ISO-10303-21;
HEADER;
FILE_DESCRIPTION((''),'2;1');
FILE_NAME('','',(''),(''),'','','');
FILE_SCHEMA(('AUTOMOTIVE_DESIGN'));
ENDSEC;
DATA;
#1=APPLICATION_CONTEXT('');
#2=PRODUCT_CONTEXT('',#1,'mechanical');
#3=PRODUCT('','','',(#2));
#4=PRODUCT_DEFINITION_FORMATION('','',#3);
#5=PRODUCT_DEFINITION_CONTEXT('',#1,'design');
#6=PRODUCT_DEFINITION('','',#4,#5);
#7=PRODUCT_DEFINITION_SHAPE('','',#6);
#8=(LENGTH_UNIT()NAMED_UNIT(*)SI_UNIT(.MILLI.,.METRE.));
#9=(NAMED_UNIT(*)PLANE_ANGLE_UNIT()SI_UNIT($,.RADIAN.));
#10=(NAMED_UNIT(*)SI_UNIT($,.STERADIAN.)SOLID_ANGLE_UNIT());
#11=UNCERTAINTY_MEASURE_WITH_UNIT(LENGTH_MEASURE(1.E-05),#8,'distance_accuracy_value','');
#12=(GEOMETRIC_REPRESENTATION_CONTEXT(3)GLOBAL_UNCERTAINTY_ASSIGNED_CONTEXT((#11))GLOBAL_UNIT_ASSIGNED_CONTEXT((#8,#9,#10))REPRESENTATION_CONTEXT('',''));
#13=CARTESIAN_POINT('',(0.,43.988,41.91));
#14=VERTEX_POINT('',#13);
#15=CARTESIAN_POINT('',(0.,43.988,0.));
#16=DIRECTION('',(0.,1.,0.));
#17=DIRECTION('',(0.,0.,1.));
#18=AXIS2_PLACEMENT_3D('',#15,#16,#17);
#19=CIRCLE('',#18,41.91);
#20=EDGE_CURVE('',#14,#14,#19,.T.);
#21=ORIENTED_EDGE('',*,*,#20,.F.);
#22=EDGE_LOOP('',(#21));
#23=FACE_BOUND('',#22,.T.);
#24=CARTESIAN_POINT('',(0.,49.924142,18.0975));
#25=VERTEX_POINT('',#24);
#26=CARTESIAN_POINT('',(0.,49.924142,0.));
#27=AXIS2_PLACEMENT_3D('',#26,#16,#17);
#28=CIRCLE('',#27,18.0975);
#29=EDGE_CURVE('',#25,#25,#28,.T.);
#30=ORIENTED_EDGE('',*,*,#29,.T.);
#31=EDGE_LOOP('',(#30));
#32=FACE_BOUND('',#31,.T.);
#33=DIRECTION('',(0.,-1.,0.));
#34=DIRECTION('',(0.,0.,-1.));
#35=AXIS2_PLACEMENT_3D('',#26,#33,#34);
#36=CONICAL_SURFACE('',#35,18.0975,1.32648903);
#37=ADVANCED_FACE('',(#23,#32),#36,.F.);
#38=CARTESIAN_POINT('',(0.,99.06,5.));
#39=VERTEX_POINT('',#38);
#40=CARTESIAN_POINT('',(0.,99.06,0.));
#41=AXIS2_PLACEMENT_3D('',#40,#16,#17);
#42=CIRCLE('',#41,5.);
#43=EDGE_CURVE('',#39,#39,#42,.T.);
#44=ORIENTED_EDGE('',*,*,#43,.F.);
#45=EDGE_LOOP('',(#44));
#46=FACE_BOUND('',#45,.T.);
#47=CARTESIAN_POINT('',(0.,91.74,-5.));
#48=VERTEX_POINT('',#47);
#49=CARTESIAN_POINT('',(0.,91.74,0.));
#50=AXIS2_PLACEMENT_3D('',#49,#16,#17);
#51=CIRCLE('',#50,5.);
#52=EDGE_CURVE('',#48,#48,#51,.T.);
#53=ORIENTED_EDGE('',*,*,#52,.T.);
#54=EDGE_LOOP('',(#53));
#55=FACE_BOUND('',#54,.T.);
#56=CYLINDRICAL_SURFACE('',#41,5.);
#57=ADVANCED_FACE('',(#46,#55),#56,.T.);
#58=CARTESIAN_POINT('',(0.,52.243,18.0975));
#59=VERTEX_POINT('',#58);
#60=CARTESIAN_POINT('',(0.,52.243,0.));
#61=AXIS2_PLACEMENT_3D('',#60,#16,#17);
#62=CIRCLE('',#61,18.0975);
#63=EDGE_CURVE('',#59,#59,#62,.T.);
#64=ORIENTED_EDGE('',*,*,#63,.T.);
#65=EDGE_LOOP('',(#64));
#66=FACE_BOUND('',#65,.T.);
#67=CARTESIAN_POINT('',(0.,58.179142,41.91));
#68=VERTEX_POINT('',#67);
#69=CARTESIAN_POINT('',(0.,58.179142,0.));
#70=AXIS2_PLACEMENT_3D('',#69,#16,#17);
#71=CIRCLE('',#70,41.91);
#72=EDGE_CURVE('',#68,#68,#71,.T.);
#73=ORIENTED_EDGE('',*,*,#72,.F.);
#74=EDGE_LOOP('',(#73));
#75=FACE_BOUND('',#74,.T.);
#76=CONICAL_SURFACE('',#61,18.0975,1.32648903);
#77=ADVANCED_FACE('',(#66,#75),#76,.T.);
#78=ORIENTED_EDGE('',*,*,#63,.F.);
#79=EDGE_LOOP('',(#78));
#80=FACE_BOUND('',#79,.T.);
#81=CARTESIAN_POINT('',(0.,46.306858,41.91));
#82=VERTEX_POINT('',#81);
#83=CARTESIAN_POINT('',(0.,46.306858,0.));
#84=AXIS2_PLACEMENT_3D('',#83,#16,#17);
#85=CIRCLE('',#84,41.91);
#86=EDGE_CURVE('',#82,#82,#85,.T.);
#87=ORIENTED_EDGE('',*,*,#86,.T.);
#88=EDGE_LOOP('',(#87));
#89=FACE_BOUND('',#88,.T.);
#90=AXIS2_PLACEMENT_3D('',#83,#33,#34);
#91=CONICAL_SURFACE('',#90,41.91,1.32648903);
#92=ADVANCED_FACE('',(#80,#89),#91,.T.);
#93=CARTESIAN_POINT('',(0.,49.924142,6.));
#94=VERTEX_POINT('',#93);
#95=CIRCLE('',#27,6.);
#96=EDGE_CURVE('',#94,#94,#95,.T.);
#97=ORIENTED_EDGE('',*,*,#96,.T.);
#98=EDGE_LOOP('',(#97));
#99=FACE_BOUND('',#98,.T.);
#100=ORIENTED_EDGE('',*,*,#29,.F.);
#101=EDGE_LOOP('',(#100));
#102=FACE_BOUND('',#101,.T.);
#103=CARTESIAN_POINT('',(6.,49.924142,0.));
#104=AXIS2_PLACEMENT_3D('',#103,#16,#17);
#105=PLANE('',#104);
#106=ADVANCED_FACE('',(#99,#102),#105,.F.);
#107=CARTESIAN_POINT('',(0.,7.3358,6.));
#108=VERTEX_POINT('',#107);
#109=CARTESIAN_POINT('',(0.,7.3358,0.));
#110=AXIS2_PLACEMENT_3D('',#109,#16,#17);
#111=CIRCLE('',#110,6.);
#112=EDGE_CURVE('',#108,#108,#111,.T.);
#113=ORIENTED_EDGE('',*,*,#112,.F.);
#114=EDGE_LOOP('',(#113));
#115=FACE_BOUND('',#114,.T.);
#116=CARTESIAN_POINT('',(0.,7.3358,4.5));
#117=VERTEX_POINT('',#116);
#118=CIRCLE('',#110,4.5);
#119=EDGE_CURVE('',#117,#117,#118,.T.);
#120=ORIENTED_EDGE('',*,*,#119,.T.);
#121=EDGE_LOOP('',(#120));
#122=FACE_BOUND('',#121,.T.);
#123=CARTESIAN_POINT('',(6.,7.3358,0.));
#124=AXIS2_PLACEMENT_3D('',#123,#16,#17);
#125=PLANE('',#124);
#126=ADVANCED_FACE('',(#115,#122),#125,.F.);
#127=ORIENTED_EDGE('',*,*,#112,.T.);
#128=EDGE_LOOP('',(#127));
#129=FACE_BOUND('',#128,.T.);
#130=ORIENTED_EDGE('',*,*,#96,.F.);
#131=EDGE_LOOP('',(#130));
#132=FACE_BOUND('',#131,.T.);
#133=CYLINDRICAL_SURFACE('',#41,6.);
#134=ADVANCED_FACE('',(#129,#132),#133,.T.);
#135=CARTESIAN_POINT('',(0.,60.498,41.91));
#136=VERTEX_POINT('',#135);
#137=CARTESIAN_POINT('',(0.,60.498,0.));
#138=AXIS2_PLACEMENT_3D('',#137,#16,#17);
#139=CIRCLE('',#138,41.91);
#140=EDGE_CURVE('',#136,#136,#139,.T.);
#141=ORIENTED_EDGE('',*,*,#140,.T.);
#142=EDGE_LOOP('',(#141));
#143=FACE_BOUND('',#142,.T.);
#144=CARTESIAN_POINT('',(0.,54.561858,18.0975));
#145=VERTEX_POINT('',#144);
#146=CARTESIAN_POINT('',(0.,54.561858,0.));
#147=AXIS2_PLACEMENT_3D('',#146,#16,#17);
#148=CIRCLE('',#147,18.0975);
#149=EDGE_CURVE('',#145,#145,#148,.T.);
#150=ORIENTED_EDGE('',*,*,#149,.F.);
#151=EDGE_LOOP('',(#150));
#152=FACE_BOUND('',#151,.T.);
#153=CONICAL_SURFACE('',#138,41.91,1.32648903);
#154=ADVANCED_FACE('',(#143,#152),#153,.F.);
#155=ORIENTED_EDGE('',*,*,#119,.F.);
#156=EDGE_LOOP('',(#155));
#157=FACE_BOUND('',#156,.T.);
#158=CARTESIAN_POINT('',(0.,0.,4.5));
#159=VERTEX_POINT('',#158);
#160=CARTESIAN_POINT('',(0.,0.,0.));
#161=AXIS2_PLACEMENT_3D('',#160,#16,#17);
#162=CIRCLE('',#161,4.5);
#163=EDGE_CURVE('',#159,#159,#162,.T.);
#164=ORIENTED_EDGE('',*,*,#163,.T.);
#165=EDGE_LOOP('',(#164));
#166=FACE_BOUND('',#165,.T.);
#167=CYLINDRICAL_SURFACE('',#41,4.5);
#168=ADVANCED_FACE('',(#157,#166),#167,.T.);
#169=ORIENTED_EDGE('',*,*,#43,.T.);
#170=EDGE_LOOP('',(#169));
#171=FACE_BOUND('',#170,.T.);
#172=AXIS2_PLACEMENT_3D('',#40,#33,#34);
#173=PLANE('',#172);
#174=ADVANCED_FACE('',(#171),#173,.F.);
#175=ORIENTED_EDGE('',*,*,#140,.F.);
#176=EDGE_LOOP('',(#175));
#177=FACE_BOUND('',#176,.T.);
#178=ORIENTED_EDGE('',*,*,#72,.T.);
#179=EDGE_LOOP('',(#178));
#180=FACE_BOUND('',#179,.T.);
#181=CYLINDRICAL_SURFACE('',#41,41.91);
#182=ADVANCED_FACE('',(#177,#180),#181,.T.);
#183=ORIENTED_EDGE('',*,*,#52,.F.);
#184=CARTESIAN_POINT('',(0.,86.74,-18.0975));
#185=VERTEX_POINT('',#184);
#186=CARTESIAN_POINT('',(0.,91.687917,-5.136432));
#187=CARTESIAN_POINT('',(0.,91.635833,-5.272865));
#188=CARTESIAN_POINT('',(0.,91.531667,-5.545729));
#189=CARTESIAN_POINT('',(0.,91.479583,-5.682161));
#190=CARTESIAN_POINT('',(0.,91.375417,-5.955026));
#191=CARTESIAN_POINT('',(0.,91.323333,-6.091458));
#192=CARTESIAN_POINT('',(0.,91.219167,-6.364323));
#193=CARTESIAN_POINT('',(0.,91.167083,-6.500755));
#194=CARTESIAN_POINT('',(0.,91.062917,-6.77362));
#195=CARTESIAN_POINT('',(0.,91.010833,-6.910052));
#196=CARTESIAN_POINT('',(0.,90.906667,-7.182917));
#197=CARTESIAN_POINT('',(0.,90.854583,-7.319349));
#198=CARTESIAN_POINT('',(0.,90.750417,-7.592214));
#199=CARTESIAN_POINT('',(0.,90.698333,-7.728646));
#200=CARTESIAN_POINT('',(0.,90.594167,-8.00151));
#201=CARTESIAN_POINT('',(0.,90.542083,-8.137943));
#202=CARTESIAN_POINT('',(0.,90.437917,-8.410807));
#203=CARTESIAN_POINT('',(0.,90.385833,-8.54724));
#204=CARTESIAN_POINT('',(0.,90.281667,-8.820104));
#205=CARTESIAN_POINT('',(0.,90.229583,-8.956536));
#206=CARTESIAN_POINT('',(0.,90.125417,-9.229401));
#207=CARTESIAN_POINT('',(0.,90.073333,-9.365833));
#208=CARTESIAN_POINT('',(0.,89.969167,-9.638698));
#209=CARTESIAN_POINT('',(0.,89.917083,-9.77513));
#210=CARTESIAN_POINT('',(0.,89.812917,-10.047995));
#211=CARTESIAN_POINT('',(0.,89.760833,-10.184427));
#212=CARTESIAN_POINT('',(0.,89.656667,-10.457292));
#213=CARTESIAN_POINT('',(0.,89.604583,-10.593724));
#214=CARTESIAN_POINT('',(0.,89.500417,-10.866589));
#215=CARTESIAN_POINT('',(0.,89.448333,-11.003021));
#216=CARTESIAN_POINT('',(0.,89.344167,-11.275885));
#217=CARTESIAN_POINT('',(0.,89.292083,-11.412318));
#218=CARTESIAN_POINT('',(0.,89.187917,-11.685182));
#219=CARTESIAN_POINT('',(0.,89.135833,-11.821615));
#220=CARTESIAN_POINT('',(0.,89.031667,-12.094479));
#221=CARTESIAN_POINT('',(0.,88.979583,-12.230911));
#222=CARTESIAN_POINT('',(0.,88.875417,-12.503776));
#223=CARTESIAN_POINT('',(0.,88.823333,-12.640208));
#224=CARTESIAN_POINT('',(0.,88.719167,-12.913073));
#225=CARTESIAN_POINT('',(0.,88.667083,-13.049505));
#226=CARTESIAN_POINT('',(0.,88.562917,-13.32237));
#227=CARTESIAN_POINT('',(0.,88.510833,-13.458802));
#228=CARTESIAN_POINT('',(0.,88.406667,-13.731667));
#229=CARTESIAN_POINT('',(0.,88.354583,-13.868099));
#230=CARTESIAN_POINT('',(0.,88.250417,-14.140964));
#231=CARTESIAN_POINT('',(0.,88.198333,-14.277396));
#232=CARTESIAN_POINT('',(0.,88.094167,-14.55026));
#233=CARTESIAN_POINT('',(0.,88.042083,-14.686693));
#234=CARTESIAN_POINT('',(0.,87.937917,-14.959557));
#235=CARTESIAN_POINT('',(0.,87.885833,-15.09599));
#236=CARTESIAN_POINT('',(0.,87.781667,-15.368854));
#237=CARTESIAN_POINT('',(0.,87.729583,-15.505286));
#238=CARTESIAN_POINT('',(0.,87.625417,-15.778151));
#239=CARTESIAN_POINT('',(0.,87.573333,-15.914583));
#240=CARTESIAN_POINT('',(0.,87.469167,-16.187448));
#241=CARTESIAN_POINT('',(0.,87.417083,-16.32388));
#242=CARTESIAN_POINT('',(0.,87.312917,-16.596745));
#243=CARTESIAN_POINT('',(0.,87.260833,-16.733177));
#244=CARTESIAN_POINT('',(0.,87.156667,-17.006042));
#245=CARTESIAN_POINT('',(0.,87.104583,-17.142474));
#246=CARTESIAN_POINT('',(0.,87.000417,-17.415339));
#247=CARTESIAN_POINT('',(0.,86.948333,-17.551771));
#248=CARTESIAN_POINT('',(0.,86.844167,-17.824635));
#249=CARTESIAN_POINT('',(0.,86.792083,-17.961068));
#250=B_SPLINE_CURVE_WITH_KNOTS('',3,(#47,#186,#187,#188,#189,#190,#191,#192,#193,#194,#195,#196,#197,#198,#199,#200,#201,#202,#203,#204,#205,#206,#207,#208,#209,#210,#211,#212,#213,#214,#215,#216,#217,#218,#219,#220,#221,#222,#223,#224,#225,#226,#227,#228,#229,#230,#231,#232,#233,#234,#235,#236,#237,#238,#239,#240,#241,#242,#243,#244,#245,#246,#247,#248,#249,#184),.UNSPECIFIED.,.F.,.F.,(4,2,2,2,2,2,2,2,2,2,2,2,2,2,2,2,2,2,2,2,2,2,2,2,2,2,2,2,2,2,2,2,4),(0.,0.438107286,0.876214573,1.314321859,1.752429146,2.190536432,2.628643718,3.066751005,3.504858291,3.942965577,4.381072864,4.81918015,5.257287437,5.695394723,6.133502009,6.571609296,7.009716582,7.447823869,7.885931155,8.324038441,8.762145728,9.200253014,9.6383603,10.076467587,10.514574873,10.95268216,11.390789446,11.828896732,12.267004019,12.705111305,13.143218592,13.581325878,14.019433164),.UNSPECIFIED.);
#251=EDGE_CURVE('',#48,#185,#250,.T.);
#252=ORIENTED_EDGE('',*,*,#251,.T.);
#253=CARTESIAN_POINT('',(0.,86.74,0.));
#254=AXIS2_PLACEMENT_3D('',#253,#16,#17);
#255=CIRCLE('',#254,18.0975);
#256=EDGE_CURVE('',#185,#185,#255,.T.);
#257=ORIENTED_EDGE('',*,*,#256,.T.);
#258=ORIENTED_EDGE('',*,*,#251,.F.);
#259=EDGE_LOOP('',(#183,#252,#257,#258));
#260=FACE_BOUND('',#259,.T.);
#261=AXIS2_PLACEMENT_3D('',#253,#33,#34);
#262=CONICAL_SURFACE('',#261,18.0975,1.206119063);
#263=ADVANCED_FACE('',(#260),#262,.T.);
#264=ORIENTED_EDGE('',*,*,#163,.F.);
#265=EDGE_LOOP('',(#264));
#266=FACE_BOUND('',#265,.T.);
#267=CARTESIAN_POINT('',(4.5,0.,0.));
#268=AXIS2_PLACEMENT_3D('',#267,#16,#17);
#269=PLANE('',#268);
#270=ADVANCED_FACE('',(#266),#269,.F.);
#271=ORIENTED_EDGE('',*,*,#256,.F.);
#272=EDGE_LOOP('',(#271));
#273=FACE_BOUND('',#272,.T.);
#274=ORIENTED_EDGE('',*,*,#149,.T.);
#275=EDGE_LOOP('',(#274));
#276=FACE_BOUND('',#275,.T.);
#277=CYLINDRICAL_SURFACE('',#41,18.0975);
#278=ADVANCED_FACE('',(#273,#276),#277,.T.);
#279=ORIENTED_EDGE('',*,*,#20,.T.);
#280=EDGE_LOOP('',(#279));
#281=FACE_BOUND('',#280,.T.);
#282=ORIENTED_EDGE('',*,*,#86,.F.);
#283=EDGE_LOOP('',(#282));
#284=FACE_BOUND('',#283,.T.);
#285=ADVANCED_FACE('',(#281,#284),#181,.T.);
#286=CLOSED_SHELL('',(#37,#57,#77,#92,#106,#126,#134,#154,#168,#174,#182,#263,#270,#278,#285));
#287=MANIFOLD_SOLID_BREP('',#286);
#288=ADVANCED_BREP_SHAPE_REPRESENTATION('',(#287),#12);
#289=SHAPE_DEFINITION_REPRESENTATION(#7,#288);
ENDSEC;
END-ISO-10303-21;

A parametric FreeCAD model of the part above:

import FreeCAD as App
import Part
import Sketcher
from FreeCAD import Vector
Q = App.Units.Quantity


def add_polygon(sketch, points):
    """Adds a closed chain of lines whose ends are joined by coincident constraints."""
    first, n = sketch.GeometryCount, len(points)
    for a, b in zip(points, points[1:] + points[:1]):
        sketch.addGeometry(Part.LineSegment(App.Vector(*a, 0), App.Vector(*b, 0)), False)
    for i in range(n):
        sketch.addConstraint(Sketcher.Constraint("Coincident", first + i, 2, first + (i + 1) % n, 1))

doc = App.newDocument("Part")
body = doc.addObject("PartDesign::Body", "Body")

# Sketch on XY plane
sketch1 = body.newObject("Sketcher::SketchObject", "Sketch")
sketch1.AttachmentSupport = (doc.getObject("XY_Plane"), [""])
sketch1.MapMode = "FlatFace"
add_polygon(sketch1, [(5, 99.1), (0, 99.1), (0, 0), (4.5, 0), (4.5, 7.3), (6, 7.3), (6, 49.9), (18.1, 49.9), (41.9, 44), (41.9, 46.3), (18.1, 52.2), (41.9, 58.2), (41.9, 60.5), (18.1, 54.6), (18.1, 86.7), (5, 91.7)])  # lines 0-15
sketch1.addConstraint([
    Sketcher.Constraint("Horizontal", 0),
    Sketcher.Constraint("Vertical", 1),
    Sketcher.Constraint("Horizontal", 2),
    Sketcher.Constraint("Vertical", 3),
    Sketcher.Constraint("Horizontal", 4),
    Sketcher.Constraint("Vertical", 5),
    Sketcher.Constraint("Horizontal", 6),
    Sketcher.Constraint("Vertical", 8),
    Sketcher.Constraint("Vertical", 11),
    Sketcher.Constraint("Vertical", 13),
    Sketcher.Constraint("Vertical", 15),
    Sketcher.Constraint("Coincident", 1, 2, -1, 1),
    Sketcher.Constraint("Parallel", 7, 9),
    Sketcher.Constraint("Parallel", 10, 12),
    Sketcher.Constraint("Vertical", 6, 2, 9, 2),
    Sketcher.Constraint("Vertical", 8, 2, 10, 2),
    Sketcher.Constraint("Vertical", 9, 2, 12, 2),
    Sketcher.Constraint("Equal", 8, 11),
    Sketcher.Constraint("Equal", 9, 10),
    Sketcher.Constraint("DistanceX", 0, 2, 0, 1, Q("5 mm")),
    Sketcher.Constraint("DistanceX", 2, 1, 2, 2, Q("4.5 mm")),
    Sketcher.Constraint("DistanceX", 4, 1, 4, 2, Q("1.5 mm")),
    Sketcher.Constraint("DistanceY", 13, 2, 14, 2, Q("5 mm")),
    Sketcher.Constraint("DistanceY", 1, 2, 1, 1, Q("99.06 mm")),
    Sketcher.Constraint("DistanceY", 15, 1, 15, 2, Q("7.32 mm")),
    Sketcher.Constraint("DistanceX", -1, 1, 7, 2, Q("41.91 mm")),
    Sketcher.Constraint("DistanceY", 7, 2, 11, 2, Q("16.51 mm")),
    Sketcher.Constraint("DistanceX", 6, 1, 6, 2, Q("12.0975 mm")),
    Sketcher.Constraint("DistanceY", 3, 1, 3, 2, Q("7.3358 mm")),
    Sketcher.Constraint("DistanceY", -1, 1, 7, 2, Q("43.988 mm")),
    Sketcher.Constraint("DistanceY", 5, 1, 5, 2, Q("42.588342 mm")),
])
revolution = body.newObject("PartDesign::Revolution", "Revolution")
revolution.Profile = sketch1
revolution.ReferenceAxis = (sketch1, ["V_Axis"])
revolution.Angle = 360

doc.recompute()
